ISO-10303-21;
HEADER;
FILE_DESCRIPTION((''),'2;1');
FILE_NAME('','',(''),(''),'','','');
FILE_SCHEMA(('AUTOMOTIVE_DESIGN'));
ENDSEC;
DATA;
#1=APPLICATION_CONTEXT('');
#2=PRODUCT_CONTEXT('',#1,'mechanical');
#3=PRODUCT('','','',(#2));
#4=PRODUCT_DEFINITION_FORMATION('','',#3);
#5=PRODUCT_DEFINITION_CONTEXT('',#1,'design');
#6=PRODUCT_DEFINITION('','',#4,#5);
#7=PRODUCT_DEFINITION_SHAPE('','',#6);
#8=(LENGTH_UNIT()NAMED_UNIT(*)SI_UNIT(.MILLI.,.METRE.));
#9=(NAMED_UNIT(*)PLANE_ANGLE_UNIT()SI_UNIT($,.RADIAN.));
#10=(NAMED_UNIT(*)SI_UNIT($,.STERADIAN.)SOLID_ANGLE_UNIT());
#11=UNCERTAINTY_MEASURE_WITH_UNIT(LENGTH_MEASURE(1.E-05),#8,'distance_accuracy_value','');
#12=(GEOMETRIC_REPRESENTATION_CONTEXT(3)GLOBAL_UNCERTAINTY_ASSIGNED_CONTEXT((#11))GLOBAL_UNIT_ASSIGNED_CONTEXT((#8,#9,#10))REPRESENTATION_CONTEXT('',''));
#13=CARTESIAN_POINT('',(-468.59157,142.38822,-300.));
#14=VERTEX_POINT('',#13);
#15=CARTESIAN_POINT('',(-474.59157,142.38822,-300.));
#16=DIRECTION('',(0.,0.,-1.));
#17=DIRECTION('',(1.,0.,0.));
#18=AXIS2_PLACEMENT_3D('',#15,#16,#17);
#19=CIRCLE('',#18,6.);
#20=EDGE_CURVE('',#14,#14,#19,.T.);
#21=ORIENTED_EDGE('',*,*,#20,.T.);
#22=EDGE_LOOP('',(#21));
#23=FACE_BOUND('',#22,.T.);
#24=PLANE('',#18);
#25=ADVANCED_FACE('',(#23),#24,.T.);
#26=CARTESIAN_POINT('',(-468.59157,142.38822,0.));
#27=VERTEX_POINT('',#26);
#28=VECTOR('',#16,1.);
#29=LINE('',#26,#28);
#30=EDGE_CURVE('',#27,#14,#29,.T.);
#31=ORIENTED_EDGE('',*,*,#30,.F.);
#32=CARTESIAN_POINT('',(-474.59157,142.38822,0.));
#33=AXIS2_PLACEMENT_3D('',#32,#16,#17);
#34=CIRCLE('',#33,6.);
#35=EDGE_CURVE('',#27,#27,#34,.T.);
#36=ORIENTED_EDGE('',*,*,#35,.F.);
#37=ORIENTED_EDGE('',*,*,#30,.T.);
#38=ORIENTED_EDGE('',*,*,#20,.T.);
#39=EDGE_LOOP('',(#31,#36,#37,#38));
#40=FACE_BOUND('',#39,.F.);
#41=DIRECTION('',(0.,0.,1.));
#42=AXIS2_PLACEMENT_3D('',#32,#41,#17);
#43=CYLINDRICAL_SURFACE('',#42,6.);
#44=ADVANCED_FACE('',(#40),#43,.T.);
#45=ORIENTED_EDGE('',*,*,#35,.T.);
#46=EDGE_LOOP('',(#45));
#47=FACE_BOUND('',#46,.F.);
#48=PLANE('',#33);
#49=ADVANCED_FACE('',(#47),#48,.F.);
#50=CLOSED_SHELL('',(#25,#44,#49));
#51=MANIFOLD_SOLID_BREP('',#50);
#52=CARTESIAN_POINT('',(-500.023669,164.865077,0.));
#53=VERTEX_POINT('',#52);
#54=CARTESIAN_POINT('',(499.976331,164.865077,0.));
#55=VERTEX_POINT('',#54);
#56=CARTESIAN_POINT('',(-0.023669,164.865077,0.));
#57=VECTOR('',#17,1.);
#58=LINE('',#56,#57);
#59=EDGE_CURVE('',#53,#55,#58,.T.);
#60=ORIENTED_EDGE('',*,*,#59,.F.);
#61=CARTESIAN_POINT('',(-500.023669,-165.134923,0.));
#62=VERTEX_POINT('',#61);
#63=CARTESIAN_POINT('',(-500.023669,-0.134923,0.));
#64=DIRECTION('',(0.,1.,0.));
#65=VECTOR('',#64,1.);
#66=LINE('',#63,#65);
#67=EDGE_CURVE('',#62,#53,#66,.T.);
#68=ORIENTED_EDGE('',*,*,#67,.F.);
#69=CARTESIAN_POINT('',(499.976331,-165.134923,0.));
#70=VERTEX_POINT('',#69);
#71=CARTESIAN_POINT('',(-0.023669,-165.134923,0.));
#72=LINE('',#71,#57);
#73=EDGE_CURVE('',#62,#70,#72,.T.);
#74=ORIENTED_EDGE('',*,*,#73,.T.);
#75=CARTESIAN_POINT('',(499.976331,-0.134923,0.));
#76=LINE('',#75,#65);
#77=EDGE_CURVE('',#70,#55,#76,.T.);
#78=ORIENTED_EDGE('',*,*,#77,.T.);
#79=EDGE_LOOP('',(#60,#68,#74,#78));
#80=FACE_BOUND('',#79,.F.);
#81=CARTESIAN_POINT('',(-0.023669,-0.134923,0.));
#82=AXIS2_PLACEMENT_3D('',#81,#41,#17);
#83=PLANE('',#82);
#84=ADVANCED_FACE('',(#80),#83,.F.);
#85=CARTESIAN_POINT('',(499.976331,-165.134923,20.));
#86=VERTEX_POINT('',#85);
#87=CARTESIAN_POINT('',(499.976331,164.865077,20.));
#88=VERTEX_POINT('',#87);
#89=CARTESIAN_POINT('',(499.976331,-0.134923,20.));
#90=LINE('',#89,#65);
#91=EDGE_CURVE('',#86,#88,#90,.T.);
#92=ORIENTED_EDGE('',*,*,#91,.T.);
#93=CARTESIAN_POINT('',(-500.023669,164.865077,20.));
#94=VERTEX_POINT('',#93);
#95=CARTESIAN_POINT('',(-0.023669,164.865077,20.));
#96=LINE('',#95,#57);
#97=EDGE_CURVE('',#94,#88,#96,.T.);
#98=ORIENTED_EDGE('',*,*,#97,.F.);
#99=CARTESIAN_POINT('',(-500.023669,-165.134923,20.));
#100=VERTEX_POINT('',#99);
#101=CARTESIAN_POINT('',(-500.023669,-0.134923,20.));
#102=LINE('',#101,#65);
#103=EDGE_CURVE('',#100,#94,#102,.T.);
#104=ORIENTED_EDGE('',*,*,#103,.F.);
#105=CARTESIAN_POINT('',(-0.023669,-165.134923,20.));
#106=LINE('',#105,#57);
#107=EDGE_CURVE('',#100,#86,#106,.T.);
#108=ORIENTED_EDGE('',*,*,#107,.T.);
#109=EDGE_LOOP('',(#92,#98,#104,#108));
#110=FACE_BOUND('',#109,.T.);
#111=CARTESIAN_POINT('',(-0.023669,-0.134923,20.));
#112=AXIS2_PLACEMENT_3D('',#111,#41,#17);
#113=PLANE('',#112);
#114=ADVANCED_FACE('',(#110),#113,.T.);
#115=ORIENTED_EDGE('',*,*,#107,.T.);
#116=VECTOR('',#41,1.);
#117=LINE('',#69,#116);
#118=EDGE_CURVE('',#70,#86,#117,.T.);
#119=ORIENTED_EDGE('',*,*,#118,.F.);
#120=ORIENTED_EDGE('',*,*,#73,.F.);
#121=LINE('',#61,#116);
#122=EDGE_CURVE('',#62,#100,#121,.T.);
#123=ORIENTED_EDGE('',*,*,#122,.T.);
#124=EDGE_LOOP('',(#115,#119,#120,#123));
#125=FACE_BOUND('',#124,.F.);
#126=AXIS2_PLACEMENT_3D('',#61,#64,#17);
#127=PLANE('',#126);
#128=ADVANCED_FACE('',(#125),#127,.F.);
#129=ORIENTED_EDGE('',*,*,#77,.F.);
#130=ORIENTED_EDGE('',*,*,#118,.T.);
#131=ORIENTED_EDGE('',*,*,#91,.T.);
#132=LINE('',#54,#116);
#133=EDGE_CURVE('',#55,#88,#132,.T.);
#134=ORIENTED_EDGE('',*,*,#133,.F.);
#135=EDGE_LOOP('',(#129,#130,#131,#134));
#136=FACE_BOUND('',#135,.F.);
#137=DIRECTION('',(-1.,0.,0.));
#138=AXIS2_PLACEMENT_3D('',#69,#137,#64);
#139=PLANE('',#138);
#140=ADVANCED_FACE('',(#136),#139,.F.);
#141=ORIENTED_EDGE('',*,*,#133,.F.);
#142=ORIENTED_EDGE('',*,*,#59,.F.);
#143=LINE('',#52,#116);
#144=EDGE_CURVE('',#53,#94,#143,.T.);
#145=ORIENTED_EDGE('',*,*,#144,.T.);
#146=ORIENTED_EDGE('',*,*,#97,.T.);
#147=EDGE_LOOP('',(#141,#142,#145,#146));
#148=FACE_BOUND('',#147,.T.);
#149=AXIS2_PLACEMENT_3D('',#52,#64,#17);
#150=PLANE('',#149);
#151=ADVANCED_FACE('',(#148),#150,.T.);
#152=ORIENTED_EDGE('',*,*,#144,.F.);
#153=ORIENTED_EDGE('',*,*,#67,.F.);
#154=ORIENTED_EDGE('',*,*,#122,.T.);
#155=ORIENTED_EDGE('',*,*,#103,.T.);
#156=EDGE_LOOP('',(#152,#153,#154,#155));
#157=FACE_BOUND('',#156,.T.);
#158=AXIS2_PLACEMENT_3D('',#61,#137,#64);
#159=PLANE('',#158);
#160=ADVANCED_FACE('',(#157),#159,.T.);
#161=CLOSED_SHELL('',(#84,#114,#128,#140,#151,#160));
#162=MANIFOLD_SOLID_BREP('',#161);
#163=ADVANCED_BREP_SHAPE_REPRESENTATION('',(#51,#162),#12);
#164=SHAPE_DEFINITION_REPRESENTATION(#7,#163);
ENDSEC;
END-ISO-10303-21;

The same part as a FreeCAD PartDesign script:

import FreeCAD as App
import Part
import Sketcher
from FreeCAD import Vector

doc = App.newDocument("Part")
body = doc.addObject("PartDesign::Body", "Body")

sketch1 = body.newObject("Sketcher::SketchObject", "Sketch")
sketch1.AttachmentSupport = (doc.getObject("XY_Plane"), [""])
sketch1.MapMode = "FlatFace"
sketch1.addGeometry([
    Part.LineSegment(Vector(-500, 165, 0), Vector(-500, -165, 0)),
    Part.LineSegment(Vector(-500, -165, 0), Vector(500, -165, 0)),
    Part.LineSegment(Vector(500, -165, 0), Vector(500, 165, 0)),
    Part.LineSegment(Vector(500, 165, 0), Vector(-500, 165, 0)),
], False)
sketch1.addConstraint([
    Sketcher.Constraint("Coincident", 0, 2, 1, 1),
    Sketcher.Constraint("Coincident", 1, 2, 2, 1),
    Sketcher.Constraint("Coincident", 2, 2, 3, 1),
    Sketcher.Constraint("Coincident", 3, 2, 0, 1),
    Sketcher.Constraint("Vertical", 0),
    Sketcher.Constraint("Horizontal", 1),
    Sketcher.Constraint("Vertical", 2),
    Sketcher.Constraint("Horizontal", 3),
    Sketcher.Constraint("DistanceX", 1, 1, 1, 2, 1000.0),
    Sketcher.Constraint("DistanceY", 0, 2, 0, 1, 330.0),
    Sketcher.Constraint("DistanceX", 0, 2, -1, 1, 500.023669),
    Sketcher.Constraint("DistanceY", 0, 2, -1, 1, 165.134923),
])
pad1 = body.newObject("PartDesign::Pad", "Pad")
pad1.Profile = sketch1
pad1.Length = 20
body2 = doc.addObject("PartDesign::Body", "Body001")

sketch2 = body2.newObject("Sketcher::SketchObject", "Sketch001")
sketch2.AttachmentSupport = (doc.getObject("XY_Plane001"), [""])
sketch2.MapMode = "FlatFace"
sketch2.addGeometry(Part.Circle(Vector(-475, 142, 0), Vector(0, 0, 1), 6), False)
sketch2.addConstraint([
    Sketcher.Constraint("Diameter", 0, 12.0),
    Sketcher.Constraint("DistanceX", 0, 3, -1, 1, 474.59157),
    Sketcher.Constraint("DistanceY", -1, 1, 0, 3, 142.38822),
])
pad2 = body2.newObject("PartDesign::Pad", "Pad001")
pad2.Profile = sketch2
pad2.Length = 300
pad2.Reversed = True

doc.recompute()
